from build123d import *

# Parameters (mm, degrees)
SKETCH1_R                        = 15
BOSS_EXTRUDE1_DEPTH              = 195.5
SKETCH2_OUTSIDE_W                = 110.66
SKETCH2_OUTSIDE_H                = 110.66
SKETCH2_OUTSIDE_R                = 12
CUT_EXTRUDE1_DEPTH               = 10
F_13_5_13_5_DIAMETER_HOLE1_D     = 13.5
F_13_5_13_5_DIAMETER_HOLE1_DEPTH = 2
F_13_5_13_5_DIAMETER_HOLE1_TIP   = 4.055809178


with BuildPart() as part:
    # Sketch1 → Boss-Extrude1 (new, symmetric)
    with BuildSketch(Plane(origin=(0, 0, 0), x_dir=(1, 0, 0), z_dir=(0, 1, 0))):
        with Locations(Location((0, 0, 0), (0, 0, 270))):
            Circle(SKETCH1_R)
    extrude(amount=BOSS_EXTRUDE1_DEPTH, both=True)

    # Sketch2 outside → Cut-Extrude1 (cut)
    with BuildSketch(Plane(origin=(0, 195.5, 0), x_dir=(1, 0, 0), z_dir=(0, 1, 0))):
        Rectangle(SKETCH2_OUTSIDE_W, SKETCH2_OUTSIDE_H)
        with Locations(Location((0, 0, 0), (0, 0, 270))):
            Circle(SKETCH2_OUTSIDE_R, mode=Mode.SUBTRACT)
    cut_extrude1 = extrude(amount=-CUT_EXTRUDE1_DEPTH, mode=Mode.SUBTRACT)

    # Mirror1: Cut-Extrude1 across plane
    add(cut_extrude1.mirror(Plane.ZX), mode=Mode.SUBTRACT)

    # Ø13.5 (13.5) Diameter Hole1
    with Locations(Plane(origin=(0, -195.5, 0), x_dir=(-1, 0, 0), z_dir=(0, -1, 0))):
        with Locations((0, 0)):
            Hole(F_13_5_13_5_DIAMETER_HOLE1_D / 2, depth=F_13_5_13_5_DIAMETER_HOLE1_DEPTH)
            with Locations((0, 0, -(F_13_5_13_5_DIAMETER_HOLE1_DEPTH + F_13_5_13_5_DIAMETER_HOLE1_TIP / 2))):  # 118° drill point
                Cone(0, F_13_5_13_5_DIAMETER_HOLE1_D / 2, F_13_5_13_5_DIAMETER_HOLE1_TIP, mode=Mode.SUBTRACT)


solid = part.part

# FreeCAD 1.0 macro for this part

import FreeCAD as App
import Part
import Sketcher
from FreeCAD import Vector


def add_polygon(sketch, points):
    """Adds a closed chain of lines whose ends are joined by coincident constraints."""
    first, n = sketch.GeometryCount, len(points)
    for a, b in zip(points, points[1:] + points[:1]):
        sketch.addGeometry(Part.LineSegment(App.Vector(*a, 0), App.Vector(*b, 0)), False)
    for i in range(n):
        sketch.addConstraint(Sketcher.Constraint("Coincident", first + i, 2, first + (i + 1) % n, 1))

doc = App.newDocument("Part")
body = doc.addObject("PartDesign::Body", "Body")

# Sketch on XZ plane
sketch1 = doc.addObject("Sketcher::SketchObject", "Sketch")
body.addObject(sketch1)
sketch1.AttachmentSupport = (doc.XZ_Plane, [""])
sketch1.MapMode = "FlatFace"
sketch1.addGeometry(Part.Circle(Vector(0, 0, 0), Vector(0, 0, 1), 15), False)
sketch1.addConstraint(Sketcher.Constraint("Coincident", 0, 3, -1, 1))
sketch1.addConstraint(Sketcher.Constraint("Diameter", 0, 30.0))
pad1 = doc.addObject("PartDesign::Pad", "Pad")
body.addObject(pad1)
pad1.Profile = sketch1
pad1.Length = 391
pad1.Midplane = True

# Sketch on XZ plane
sketch2 = doc.addObject("Sketcher::SketchObject", "Sketch001")
body.addObject(sketch2)
sketch2.AttachmentSupport = (doc.XZ_Plane, [""])
sketch2.MapMode = "FlatFace"
sketch2.AttachmentOffset = App.Placement(Vector(0, 0, -195.5), App.Rotation())
add_polygon(sketch2, [(-55, -55), (-55, 55), (55, 55), (55, -55)])  # lines 0-3
sketch2.addGeometry(Part.Circle(Vector(0, 0, 0), Vector(0, 0, 1), 12), False)  # 4
sketch2.addConstraint(Sketcher.Constraint("Vertical", 0))
sketch2.addConstraint(Sketcher.Constraint("Horizontal", 1))
sketch2.addConstraint(Sketcher.Constraint("Vertical", 2))
sketch2.addConstraint(Sketcher.Constraint("Horizontal", 3))
sketch2.addConstraint(Sketcher.Constraint("Coincident", 4, 3, -1, 1))
sketch2.addConstraint(Sketcher.Constraint("Symmetric", 0, 2, 2, 2, -1, 1))
sketch2.addConstraint(Sketcher.Constraint("Equal", 3, 0))
sketch2.addConstraint(Sketcher.Constraint("Diameter", 4, 24.0))
sketch2.addConstraint(Sketcher.Constraint("DistanceX", 1, 1, 1, 2, 110.66))
pocket1 = doc.addObject("PartDesign::Pocket", "Pocket")
body.addObject(pocket1)
pocket1.Profile = sketch2
pocket1.Length = 10
pocket1.Reversed = True
doc.recompute()

mirrored = doc.addObject("PartDesign::Mirrored", "Mirrored")
body.addObject(mirrored)
mirrored.Originals = [pocket1]
mirrored.MirrorPlane = (doc.XZ_Plane, [""])
body.Tip = mirrored

# Sketch on XZ plane
sketch3 = doc.addObject("Sketcher::SketchObject", "Sketch002")
body.addObject(sketch3)
sketch3.AttachmentSupport = (doc.XZ_Plane, [""])
sketch3.MapMode = "FlatFace"
sketch3.AttachmentOffset = App.Placement(Vector(0, 0, 195.5), App.Rotation())
sketch3.addGeometry(Part.Circle(Vector(0, 0, 0), Vector(0, 0, 1), 7), False)
sketch3.addConstraint(Sketcher.Constraint("Coincident", 0, 3, -1, 1))
sketch3.addConstraint(Sketcher.Constraint("Diameter", 0, 13.5))
doc.recompute()
hole = doc.addObject("PartDesign::Hole", "Hole")
body.addObject(hole)
hole.Profile = sketch3
hole.ThreadType = "None"
hole.Diameter = 13.5
hole.DepthType = "Dimension"
hole.Depth = 2
hole.DrillPoint = "Angled"
hole.DrillPointAngle = 118

doc.recompute()
